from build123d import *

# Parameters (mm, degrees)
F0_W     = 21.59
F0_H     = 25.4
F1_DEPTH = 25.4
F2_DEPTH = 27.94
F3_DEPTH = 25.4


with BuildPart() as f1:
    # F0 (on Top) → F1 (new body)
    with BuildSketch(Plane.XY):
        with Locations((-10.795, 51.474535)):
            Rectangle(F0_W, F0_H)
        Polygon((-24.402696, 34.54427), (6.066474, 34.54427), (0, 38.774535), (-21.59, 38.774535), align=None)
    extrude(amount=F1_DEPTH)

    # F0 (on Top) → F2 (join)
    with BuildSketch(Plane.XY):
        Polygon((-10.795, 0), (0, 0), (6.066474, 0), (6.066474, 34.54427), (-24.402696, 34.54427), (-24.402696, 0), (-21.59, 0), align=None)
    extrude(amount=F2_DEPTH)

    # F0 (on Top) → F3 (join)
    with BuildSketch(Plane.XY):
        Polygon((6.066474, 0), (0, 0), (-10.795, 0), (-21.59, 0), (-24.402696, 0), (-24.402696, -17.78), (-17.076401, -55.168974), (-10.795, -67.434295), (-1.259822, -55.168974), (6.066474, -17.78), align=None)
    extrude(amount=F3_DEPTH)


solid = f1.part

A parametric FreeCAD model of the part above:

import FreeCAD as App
import Part
import Sketcher
Q = App.Units.Quantity

doc = App.newDocument("Part")
body = doc.addObject("PartDesign::Body", "Body")

# Sketch on XY plane
sketch1 = doc.addObject("Sketcher::SketchObject", "Sketch")
body.addObject(sketch1)
sketch1.AttachmentSupport = (doc.XY_Plane, [""])
sketch1.MapMode = "FlatFace"
sketch1.addGeometry(Part.LineSegment(App.Vector(-21.59, 64.174535, 0), App.Vector(-21.59, 38.774535, 0)), False)
sketch1.addGeometry(Part.LineSegment(App.Vector(-21.59, 38.774535, 0), App.Vector(-24.402696, 34.54427, 0)), False)
sketch1.addGeometry(Part.LineSegment(App.Vector(-24.402696, 34.54427, 0), App.Vector(6.066474, 34.54427, 0)), False)
sketch1.addGeometry(Part.LineSegment(App.Vector(6.066474, 34.54427, 0), App.Vector(0, 38.774535, 0)), False)
sketch1.addGeometry(Part.LineSegment(App.Vector(0, 38.774535, 0), App.Vector(0, 64.174535, 0)), False)
sketch1.addGeometry(Part.LineSegment(App.Vector(0, 64.174535, 0), App.Vector(-21.59, 64.174535, 0)), False)
sketch1.addConstraint(Sketcher.Constraint("Coincident", 0, 2, 1, 1))
sketch1.addConstraint(Sketcher.Constraint("Coincident", 1, 2, 2, 1))
sketch1.addConstraint(Sketcher.Constraint("Coincident", 2, 2, 3, 1))
sketch1.addConstraint(Sketcher.Constraint("Coincident", 3, 2, 4, 1))
sketch1.addConstraint(Sketcher.Constraint("Coincident", 4, 2, 5, 1))
sketch1.addConstraint(Sketcher.Constraint("Coincident", 5, 2, 0, 1))
sketch1.addConstraint(Sketcher.Constraint("Vertical", 0))
sketch1.addConstraint(Sketcher.Constraint("Horizontal", 2))
sketch1.addConstraint(Sketcher.Constraint("Vertical", 4))
sketch1.addConstraint(Sketcher.Constraint("Horizontal", 5))
sketch1.addConstraint(Sketcher.Constraint("PointOnObject", 3, 2, -2))
sketch1.addConstraint(Sketcher.Constraint("Horizontal", 0, 2, 3, 2))
sketch1.addConstraint(Sketcher.Constraint("DistanceY", 0, 2, 0, 1, Q("1 in")))
sketch1.addConstraint(Sketcher.Constraint("Distance", 1, Q("0.2 in")))
sketch1.addConstraint(Sketcher.Constraint("DistanceX", 5, 2, 5, 1, Q("0.85 in")))
sketch1.addConstraint(Sketcher.Constraint("DistanceX", 2, 1, 2, 2, 30.46917))
sketch1.addConstraint(Sketcher.Constraint("Distance", 3, 7.395759))
sketch1.addConstraint(Sketcher.Constraint("DistanceY", -1, 1, 1, 2, 34.54427))
pad1 = doc.addObject("PartDesign::Pad", "Pad")
body.addObject(pad1)
pad1.Profile = sketch1
pad1.Length = Q("1 in")

# Sketch on XY plane
sketch2 = doc.addObject("Sketcher::SketchObject", "Sketch001")
body.addObject(sketch2)
sketch2.AttachmentSupport = (doc.XY_Plane, [""])
sketch2.MapMode = "FlatFace"
sketch2.addGeometry(Part.LineSegment(App.Vector(6.066474, 0, 0), App.Vector(6.066474, 34.54427, 0)), False)
sketch2.addGeometry(Part.LineSegment(App.Vector(6.066474, 34.54427, 0), App.Vector(-24.402696, 34.54427, 0)), False)
sketch2.addGeometry(Part.LineSegment(App.Vector(-24.402696, 34.54427, 0), App.Vector(-24.402696, 0, 0)), False)
sketch2.addGeometry(Part.LineSegment(App.Vector(-24.402696, 0, 0), App.Vector(6.066474, 0, 0)), False)
sketch2.addConstraint(Sketcher.Constraint("Coincident", 0, 2, 1, 1))
sketch2.addConstraint(Sketcher.Constraint("Coincident", 1, 2, 2, 1))
sketch2.addConstraint(Sketcher.Constraint("Coincident", 2, 2, 3, 1))
sketch2.addConstraint(Sketcher.Constraint("Coincident", 3, 2, 0, 1))
sketch2.addConstraint(Sketcher.Constraint("Vertical", 0))
sketch2.addConstraint(Sketcher.Constraint("Horizontal", 1))
sketch2.addConstraint(Sketcher.Constraint("Vertical", 2))
sketch2.addConstraint(Sketcher.Constraint("Horizontal", 3))
sketch2.addConstraint(Sketcher.Constraint("PointOnObject", 2, 2, -1))
sketch2.addConstraint(Sketcher.Constraint("DistanceX", 1, 2, 1, 1, 30.46917))
sketch2.addConstraint(Sketcher.Constraint("DistanceY", 0, 1, 0, 2, 34.54427))
sketch2.addConstraint(Sketcher.Constraint("DistanceX", -1, 1, 0, 2, 6.066474))
pad2 = doc.addObject("PartDesign::Pad", "Pad001")
body.addObject(pad2)
pad2.Profile = sketch2
pad2.Length = Q("1.1 in")

# Sketch on XY plane
sketch3 = doc.addObject("Sketcher::SketchObject", "Sketch002")
body.addObject(sketch3)
sketch3.AttachmentSupport = (doc.XY_Plane, [""])
sketch3.MapMode = "FlatFace"
sketch3.addGeometry(Part.LineSegment(App.Vector(6.066474, 0, 0), App.Vector(-24.402696, 0, 0)), False)
sketch3.addGeometry(Part.LineSegment(App.Vector(-24.402696, 0, 0), App.Vector(-24.402696, -17.78, 0)), False)
sketch3.addGeometry(Part.LineSegment(App.Vector(-24.402696, -17.78, 0), App.Vector(-17.076401, -55.168974, 0)), False)
sketch3.addGeometry(Part.LineSegment(App.Vector(-17.076401, -55.168974, 0), App.Vector(-10.795, -67.434295, 0)), False)
sketch3.addGeometry(Part.LineSegment(App.Vector(-10.795, -67.434295, 0), App.Vector(-1.259822, -55.168974, 0)), False)
sketch3.addGeometry(Part.LineSegment(App.Vector(-1.259822, -55.168974, 0), App.Vector(6.066474, -17.78, 0)), False)
sketch3.addGeometry(Part.LineSegment(App.Vector(6.066474, -17.78, 0), App.Vector(6.066474, 0, 0)), False)
sketch3.addConstraint(Sketcher.Constraint("Coincident", 0, 2, 1, 1))
sketch3.addConstraint(Sketcher.Constraint("Coincident", 1, 2, 2, 1))
sketch3.addConstraint(Sketcher.Constraint("Coincident", 2, 2, 3, 1))
sketch3.addConstraint(Sketcher.Constraint("Coincident", 3, 2, 4, 1))
sketch3.addConstraint(Sketcher.Constraint("Coincident", 4, 2, 5, 1))
sketch3.addConstraint(Sketcher.Constraint("Coincident", 5, 2, 6, 1))
sketch3.addConstraint(Sketcher.Constraint("Coincident", 6, 2, 0, 1))
sketch3.addConstraint(Sketcher.Constraint("Horizontal", 0))
sketch3.addConstraint(Sketcher.Constraint("Vertical", 1))
sketch3.addConstraint(Sketcher.Constraint("Vertical", 6))
sketch3.addConstraint(Sketcher.Constraint("PointOnObject", 0, 2, -1))
sketch3.addConstraint(Sketcher.Constraint("Horizontal", 2, 2, 4, 2))
sketch3.addConstraint(Sketcher.Constraint("Horizontal", 1, 2, 5, 2))
sketch3.addConstraint(Sketcher.Constraint("Equal", 2, 5))
sketch3.addConstraint(Sketcher.Constraint("DistanceY", 1, 2, 1, 1, Q("0.7 in")))
sketch3.addConstraint(Sketcher.Constraint("Distance", 2, Q("1.5 in")))
sketch3.addConstraint(Sketcher.Constraint("DistanceX", 3, 2, -1, 1, Q("0.425 in")))
sketch3.addConstraint(Sketcher.Constraint("DistanceX", 2, 2, 4, 2, Q("0.6227 in")))
sketch3.addConstraint(Sketcher.Constraint("DistanceX", 0, 2, 0, 1, 30.46917))
sketch3.addConstraint(Sketcher.Constraint("DistanceX", 2, 2, -1, 1, 17.076401))
sketch3.addConstraint(Sketcher.Constraint("Distance", 4, 15.535692))
pad3 = doc.addObject("PartDesign::Pad", "Pad002")
body.addObject(pad3)
pad3.Profile = sketch3
pad3.Length = Q("1 in")

doc.recompute()
